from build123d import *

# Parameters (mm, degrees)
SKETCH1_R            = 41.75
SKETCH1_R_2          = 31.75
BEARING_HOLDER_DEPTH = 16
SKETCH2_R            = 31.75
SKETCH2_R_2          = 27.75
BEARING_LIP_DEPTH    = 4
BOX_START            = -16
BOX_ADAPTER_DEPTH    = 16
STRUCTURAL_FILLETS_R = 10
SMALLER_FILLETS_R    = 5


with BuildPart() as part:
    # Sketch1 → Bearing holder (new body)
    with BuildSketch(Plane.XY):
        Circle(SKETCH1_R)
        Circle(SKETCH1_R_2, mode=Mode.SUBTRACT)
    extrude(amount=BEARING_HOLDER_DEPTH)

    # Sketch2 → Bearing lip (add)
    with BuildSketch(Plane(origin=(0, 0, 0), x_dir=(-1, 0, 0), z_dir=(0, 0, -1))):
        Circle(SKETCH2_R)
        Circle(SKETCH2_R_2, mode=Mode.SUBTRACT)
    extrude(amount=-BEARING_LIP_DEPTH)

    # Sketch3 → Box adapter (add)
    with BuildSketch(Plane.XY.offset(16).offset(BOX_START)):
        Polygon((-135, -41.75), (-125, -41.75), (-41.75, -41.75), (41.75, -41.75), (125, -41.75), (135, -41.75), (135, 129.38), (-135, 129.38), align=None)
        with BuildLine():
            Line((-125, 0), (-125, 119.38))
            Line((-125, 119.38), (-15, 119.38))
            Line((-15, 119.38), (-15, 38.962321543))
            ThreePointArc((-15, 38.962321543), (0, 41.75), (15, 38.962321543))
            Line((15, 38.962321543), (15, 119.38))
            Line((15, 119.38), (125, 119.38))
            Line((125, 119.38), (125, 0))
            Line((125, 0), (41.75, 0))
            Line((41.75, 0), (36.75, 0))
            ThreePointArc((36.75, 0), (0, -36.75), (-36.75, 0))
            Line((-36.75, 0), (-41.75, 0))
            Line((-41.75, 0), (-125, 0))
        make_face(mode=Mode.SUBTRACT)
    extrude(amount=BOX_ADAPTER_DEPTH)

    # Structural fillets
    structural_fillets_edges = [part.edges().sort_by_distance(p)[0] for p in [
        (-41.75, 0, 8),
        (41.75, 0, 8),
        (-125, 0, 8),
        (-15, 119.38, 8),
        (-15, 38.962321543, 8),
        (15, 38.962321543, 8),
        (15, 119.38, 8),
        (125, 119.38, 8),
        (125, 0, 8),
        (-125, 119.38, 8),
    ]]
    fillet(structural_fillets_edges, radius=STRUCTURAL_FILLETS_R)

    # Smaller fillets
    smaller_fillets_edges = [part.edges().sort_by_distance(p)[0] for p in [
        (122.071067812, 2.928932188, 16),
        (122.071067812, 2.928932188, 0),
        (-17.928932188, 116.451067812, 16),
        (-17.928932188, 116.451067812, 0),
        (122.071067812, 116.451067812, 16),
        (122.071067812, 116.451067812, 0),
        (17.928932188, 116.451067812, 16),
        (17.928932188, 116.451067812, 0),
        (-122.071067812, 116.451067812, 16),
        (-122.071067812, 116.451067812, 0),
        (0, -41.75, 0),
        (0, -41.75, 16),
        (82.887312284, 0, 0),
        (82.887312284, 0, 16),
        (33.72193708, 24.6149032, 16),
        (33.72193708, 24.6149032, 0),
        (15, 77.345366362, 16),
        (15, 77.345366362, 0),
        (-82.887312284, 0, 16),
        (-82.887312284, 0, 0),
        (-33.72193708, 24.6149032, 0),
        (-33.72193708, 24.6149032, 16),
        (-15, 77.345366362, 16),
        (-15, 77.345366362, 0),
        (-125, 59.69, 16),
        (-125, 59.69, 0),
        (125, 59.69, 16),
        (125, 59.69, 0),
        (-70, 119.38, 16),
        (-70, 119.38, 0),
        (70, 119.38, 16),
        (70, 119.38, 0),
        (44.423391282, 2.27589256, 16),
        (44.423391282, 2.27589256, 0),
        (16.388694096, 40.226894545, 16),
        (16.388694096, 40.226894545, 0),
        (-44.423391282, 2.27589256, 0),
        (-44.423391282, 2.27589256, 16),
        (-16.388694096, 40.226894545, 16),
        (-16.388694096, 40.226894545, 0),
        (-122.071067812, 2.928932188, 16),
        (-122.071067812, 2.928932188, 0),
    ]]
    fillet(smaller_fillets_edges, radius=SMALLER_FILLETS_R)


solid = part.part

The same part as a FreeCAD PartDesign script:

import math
import FreeCAD as App
import Part
import Sketcher

V = App.Vector
Q = App.Units.Quantity


def edges_at(feature, points):
    """Names of the edges that pass closest to the given points."""
    edges = feature.Shape.Edges
    near = lambda p: min(range(len(edges)), key=lambda i: edges[i].distToShape(Part.Vertex(*p))[0])
    return sorted({f"Edge{near(p) + 1}" for p in points})

doc = App.newDocument("Part")
body = doc.addObject("PartDesign::Body", "Body")

sketch1 = doc.addObject("Sketcher::SketchObject", "Sketch")
body.addObject(sketch1)
sketch1.AttachmentSupport = (doc.XY_Plane, [""])
sketch1.MapMode = "FlatFace"
sketch1.addGeometry([
    Part.Circle(V(0, 0, 0), V(0, 0, 1), 42),
    Part.Circle(V(0, 0, 0), V(0, 0, 1), 32),
], False)
sketch1.addConstraint([
    Sketcher.Constraint("Coincident", 0, 3, -1, 1),
    Sketcher.Constraint("Coincident", 1, 3, -1, 1),
    Sketcher.Constraint("Diameter", 0, Q("83.5 mm")),
    Sketcher.Constraint("Diameter", 1, Q("63.5 mm")),
])
pad1 = doc.addObject("PartDesign::Pad", "Pad")
body.addObject(pad1)
pad1.Profile = sketch1
pad1.Length = 16

sketch2 = doc.addObject("Sketcher::SketchObject", "Sketch001")
body.addObject(sketch2)
sketch2.AttachmentSupport = (doc.XY_Plane, [""])
sketch2.MapMode = "FlatFace"
sketch2.addGeometry([
    Part.Circle(V(0, 0, 0), V(0, 0, 1), 32),
    Part.Circle(V(0, 0, 0), V(0, 0, 1), 28),
], False)
sketch2.addConstraint([
    Sketcher.Constraint("Coincident", 0, 3, -1, 1),
    Sketcher.Constraint("Coincident", 1, 3, -1, 1),
    Sketcher.Constraint("Diameter", 0, Q("63.5 mm")),
    Sketcher.Constraint("Diameter", 1, Q("55.5 mm")),
])
pad2 = doc.addObject("PartDesign::Pad", "Pad001")
body.addObject(pad2)
pad2.Profile = sketch2
pad2.Length = 4

sketch3 = doc.addObject("Sketcher::SketchObject", "Sketch002")
body.addObject(sketch3)
sketch3.AttachmentSupport = (doc.XY_Plane, [""])
sketch3.MapMode = "FlatFace"
sketch3.addGeometry([
    Part.LineSegment(V(-135, -42, 0), V(135, -42, 0)),
    Part.LineSegment(V(135, -42, 0), V(135, 129, 0)),
    Part.LineSegment(V(135, 129, 0), V(-135, 129, 0)),
    Part.LineSegment(V(-135, 129, 0), V(-135, -42, 0)),
    Part.LineSegment(V(-37, 0, 0), V(-125, 0, 0)),
    Part.LineSegment(V(-125, 0, 0), V(-125, 119, 0)),
    Part.LineSegment(V(-125, 119, 0), V(-15, 119, 0)),
    Part.LineSegment(V(-15, 119, 0), V(-15, 39, 0)),
    Part.ArcOfCircle(Part.Circle(V(0, 0, 0), V(0, 0, 1), 42), math.radians(69), math.radians(111)),
    Part.LineSegment(V(15, 39, 0), V(15, 119, 0)),
    Part.LineSegment(V(15, 119, 0), V(125, 119, 0)),
    Part.LineSegment(V(125, 119, 0), V(125, 0, 0)),
    Part.LineSegment(V(125, 0, 0), V(37, 0, 0)),
    Part.ArcOfCircle(Part.Circle(V(0, 0, 0), V(0, 0, 1), 37), math.radians(180), math.radians(360)),
], False)
sketch3.addConstraint([
    Sketcher.Constraint("Coincident", 0, 2, 1, 1),
    Sketcher.Constraint("Coincident", 1, 2, 2, 1),
    Sketcher.Constraint("Coincident", 2, 2, 3, 1),
    Sketcher.Constraint("Coincident", 3, 2, 0, 1),
    Sketcher.Constraint("Coincident", 4, 2, 5, 1),
    Sketcher.Constraint("Coincident", 5, 2, 6, 1),
    Sketcher.Constraint("Coincident", 6, 2, 7, 1),
    Sketcher.Constraint("Coincident", 7, 2, 8, 2),
    Sketcher.Constraint("Coincident", 8, 1, 9, 1),
    Sketcher.Constraint("Coincident", 9, 2, 10, 1),
    Sketcher.Constraint("Coincident", 10, 2, 11, 1),
    Sketcher.Constraint("Coincident", 11, 2, 12, 1),
    Sketcher.Constraint("Coincident", 12, 2, 13, 2),
    Sketcher.Constraint("Coincident", 13, 1, 4, 1),
    Sketcher.Constraint("Horizontal", 0),
    Sketcher.Constraint("Vertical", 1),
    Sketcher.Constraint("Horizontal", 2),
    Sketcher.Constraint("Vertical", 3),
    Sketcher.Constraint("Horizontal", 4),
    Sketcher.Constraint("Vertical", 5),
    Sketcher.Constraint("Horizontal", 6),
    Sketcher.Constraint("Vertical", 7),
    Sketcher.Constraint("Vertical", 9),
    Sketcher.Constraint("Horizontal", 10),
    Sketcher.Constraint("Vertical", 11),
    Sketcher.Constraint("Horizontal", 12),
    Sketcher.Constraint("Coincident", 8, 3, -1, 1),
    Sketcher.Constraint("Coincident", 13, 3, -1, 1),
    Sketcher.Constraint("Symmetric", 4, 2, 11, 2, -1, 1),
    Sketcher.Constraint("Symmetric", 6, 2, 9, 2, -2),
    Sketcher.Constraint("PointOnObject", 4, 2, -1),
    Sketcher.Constraint("DistanceX", 0, 1, 0, 2, Q("270 mm")),
    Sketcher.Constraint("DistanceX", 6, 1, 6, 2, Q("110 mm")),
    Sketcher.Constraint("Radius", 8, Q("41.75 mm")),
    Sketcher.Constraint("Radius", 13, Q("36.75 mm")),
    Sketcher.Constraint("DistanceX", -1, 1, 0, 2, Q("135 mm")),
    Sketcher.Constraint("DistanceX", 4, 2, -1, 1, Q("125 mm")),
    Sketcher.Constraint("DistanceY", 5, 2, 2, 2, Q("10 mm")),
    Sketcher.Constraint("DistanceY", 1, 1, 1, 2, Q("171.13 mm")),
    Sketcher.Constraint("DistanceY", 5, 1, 5, 2, Q("119.38 mm")),
])
pad3 = doc.addObject("PartDesign::Pad", "Pad002")
body.addObject(pad3)
pad3.Profile = sketch3
pad3.Length = 16
doc.recompute()

fillet = doc.addObject("PartDesign::Fillet", "Fillet")
body.addObject(fillet)
fillet.Base = (pad3, edges_at(pad3, [
    (-41.75, 0, 8),
    (41.75, 0, 8),
    (-125, 0, 8),
    (-15, 119.38, 8),
    (-15, 38.962, 8),
    (15, 38.962, 8),
    (15, 119.38, 8),
    (125, 119.38, 8),
    (125, 0, 8),
    (-125, 119.38, 8),
]))
fillet.Radius = 10
doc.recompute()

fillet2 = doc.addObject("PartDesign::Fillet", "Fillet001")
body.addObject(fillet2)
fillet2.Base = (fillet, edges_at(fillet, [
    (122.071, 2.929, 16),
    (122.071, 2.929, 0),
    (-17.929, 116.451, 16),
    (-17.929, 116.451, 0),
    (122.071, 116.451, 16),
    (122.071, 116.451, 0),
    (17.929, 116.451, 16),
    (17.929, 116.451, 0),
    (-122.071, 116.451, 16),
    (-122.071, 116.451, 0),
    (0, -41.75, 0),
    (0, -41.75, 16),
    (82.887, 0, 0),
    (82.887, 0, 16),
    (33.722, 24.615, 16),
    (33.722, 24.615, 0),
    (15, 77.345, 16),
    (15, 77.345, 0),
    (-82.887, 0, 16),
    (-82.887, 0, 0),
    (-33.722, 24.615, 0),
    (-33.722, 24.615, 16),
    (-15, 77.345, 16),
    (-15, 77.345, 0),
    (-125, 59.69, 16),
    (-125, 59.69, 0),
    (125, 59.69, 16),
    (125, 59.69, 0),
    (-70, 119.38, 16),
    (-70, 119.38, 0),
    (70, 119.38, 16),
    (70, 119.38, 0),
    (44.423, 2.276, 16),
    (44.423, 2.276, 0),
    (16.389, 40.227, 16),
    (16.389, 40.227, 0),
    (-44.423, 2.276, 0),
    (-44.423, 2.276, 16),
    (-16.389, 40.227, 16),
    (-16.389, 40.227, 0),
    (-122.071, 2.929, 16),
    (-122.071, 2.929, 0),
]))
fillet2.Radius = 5

doc.recompute()
